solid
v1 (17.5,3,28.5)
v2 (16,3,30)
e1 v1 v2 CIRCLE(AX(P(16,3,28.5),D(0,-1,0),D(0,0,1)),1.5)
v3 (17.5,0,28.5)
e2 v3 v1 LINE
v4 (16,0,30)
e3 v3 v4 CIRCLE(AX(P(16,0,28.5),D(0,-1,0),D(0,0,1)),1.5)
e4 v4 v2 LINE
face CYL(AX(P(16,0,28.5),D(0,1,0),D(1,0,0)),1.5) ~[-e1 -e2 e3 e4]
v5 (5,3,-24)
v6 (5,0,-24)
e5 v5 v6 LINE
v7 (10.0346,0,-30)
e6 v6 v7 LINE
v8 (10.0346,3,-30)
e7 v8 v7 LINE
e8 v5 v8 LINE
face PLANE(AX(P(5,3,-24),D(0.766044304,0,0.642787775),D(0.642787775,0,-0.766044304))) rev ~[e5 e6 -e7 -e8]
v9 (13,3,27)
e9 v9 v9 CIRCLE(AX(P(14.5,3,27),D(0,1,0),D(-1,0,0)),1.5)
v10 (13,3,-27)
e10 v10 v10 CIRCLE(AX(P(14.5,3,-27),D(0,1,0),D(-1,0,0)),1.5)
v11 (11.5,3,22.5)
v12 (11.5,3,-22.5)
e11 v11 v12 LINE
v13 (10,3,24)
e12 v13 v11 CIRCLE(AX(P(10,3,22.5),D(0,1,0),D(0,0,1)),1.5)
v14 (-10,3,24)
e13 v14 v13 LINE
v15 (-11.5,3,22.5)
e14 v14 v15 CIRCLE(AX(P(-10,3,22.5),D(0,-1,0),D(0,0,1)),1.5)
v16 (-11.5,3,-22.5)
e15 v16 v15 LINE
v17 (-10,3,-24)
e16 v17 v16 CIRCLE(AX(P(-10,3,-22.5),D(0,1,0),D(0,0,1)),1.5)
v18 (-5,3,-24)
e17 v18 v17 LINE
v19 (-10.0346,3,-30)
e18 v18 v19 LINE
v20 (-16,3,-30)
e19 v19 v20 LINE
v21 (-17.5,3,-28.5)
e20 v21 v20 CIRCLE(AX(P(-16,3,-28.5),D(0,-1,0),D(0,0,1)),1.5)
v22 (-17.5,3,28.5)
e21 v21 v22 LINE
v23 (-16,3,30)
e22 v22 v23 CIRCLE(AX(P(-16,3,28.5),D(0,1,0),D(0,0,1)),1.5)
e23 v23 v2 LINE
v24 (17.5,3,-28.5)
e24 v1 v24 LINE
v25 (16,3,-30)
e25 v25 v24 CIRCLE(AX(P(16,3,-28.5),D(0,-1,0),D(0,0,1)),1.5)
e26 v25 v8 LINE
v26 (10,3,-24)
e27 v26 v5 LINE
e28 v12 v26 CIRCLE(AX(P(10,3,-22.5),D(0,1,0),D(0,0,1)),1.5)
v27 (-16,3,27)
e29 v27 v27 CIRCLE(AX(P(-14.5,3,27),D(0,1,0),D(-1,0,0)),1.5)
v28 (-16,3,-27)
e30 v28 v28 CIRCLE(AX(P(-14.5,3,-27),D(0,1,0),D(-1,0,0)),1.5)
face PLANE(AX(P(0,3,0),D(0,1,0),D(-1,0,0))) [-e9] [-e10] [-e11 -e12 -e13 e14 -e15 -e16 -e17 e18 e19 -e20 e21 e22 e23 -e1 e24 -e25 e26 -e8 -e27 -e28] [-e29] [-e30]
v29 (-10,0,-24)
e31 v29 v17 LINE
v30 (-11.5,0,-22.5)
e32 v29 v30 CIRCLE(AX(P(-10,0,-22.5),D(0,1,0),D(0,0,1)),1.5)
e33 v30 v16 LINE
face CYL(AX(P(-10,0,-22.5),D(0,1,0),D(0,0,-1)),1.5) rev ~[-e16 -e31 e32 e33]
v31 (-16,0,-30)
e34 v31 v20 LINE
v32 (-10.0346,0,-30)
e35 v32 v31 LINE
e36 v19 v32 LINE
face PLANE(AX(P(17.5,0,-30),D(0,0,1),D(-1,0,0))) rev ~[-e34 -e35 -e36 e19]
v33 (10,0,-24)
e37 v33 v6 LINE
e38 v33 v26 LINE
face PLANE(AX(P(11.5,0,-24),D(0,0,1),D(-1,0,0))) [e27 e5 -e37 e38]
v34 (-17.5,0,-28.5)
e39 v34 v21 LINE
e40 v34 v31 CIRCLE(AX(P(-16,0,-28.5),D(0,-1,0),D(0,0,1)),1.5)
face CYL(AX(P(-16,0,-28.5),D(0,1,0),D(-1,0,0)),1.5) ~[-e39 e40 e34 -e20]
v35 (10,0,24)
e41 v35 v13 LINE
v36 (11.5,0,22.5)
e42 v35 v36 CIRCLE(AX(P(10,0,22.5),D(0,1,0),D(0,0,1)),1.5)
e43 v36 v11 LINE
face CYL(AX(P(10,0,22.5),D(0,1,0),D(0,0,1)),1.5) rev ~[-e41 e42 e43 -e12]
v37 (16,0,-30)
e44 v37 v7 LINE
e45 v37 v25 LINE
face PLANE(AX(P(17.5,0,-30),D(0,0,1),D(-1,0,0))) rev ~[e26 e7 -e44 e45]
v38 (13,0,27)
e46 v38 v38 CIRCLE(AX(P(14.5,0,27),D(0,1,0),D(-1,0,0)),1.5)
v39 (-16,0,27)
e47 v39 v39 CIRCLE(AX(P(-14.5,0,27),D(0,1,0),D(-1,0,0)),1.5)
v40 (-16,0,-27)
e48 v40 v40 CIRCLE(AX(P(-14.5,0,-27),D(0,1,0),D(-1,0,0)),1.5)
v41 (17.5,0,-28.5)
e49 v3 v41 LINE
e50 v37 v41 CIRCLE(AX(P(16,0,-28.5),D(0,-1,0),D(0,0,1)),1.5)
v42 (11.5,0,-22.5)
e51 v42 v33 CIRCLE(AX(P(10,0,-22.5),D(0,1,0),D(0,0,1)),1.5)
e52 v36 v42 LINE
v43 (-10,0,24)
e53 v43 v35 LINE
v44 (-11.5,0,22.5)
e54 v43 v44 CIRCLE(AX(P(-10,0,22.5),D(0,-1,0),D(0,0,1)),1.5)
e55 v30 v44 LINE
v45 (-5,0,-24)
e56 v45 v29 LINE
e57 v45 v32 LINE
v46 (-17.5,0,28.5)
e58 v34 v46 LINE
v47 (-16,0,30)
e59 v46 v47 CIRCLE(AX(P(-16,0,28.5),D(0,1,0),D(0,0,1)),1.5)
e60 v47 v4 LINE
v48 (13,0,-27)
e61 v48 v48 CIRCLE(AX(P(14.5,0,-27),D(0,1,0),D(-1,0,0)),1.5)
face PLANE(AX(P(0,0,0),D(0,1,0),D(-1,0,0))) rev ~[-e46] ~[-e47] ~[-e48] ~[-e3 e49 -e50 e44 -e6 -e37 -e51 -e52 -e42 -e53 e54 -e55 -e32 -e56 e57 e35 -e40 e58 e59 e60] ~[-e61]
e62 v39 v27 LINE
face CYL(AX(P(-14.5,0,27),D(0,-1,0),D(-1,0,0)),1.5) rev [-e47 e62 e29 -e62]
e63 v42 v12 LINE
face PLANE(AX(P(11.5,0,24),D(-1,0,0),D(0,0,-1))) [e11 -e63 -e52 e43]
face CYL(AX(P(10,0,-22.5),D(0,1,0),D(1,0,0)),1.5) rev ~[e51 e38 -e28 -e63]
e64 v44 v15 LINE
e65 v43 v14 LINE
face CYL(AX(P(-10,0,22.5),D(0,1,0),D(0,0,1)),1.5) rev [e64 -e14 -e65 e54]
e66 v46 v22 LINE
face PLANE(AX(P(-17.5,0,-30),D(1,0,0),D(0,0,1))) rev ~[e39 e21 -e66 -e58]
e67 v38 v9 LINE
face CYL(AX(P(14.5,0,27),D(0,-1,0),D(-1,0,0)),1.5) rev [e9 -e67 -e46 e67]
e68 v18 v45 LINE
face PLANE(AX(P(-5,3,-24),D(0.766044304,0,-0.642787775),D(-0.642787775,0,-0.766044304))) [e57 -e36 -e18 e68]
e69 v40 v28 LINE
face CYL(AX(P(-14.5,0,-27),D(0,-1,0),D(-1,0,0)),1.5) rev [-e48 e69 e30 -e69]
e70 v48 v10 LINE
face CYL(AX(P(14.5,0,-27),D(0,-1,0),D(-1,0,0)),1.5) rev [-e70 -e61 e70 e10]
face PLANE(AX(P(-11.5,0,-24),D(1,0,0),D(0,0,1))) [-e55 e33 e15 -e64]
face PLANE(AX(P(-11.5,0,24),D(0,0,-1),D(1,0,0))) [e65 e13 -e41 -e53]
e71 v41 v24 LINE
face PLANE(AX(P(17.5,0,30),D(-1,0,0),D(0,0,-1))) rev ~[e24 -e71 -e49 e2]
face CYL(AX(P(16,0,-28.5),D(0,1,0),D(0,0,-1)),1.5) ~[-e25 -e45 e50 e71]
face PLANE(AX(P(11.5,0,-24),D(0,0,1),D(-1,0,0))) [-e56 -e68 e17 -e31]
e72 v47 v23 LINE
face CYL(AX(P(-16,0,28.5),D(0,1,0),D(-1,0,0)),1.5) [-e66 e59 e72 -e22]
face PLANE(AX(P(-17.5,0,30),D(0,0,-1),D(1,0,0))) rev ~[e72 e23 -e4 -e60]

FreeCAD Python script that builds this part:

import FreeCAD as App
import Part
import Sketcher
Q = App.Units.Quantity


def edges_at(feature, points):
    """Names of the edges that pass closest to the given points."""
    edges = feature.Shape.Edges
    near = lambda p: min(range(len(edges)), key=lambda i: edges[i].distToShape(Part.Vertex(*p))[0])
    return sorted({f"Edge{near(p) + 1}" for p in points})

doc = App.newDocument("Part")
body = doc.addObject("PartDesign::Body", "Body")

sketch1 = doc.addObject("Sketcher::SketchObject", "Sketch")
body.addObject(sketch1)
sketch1.AttachmentSupport = (doc.XZ_Plane, [""])
sketch1.MapMode = "FlatFace"
sketch1.addGeometry(Part.LineSegment(App.Vector(-17.5, -30, 0), App.Vector(-17.5, 30, 0)), False)
sketch1.addGeometry(Part.LineSegment(App.Vector(-17.5, 30, 0), App.Vector(17.5, 30, 0)), False)
sketch1.addGeometry(Part.LineSegment(App.Vector(17.5, 30, 0), App.Vector(17.5, -30, 0)), False)
sketch1.addGeometry(Part.LineSegment(App.Vector(17.5, -30, 0), App.Vector(-17.5, -30, 0)), False)
sketch1.addGeometry(Part.Circle(App.Vector(14.5, -27, 0), App.Vector(0, 0, 1), 1.5), False)
sketch1.addGeometry(Part.Circle(App.Vector(-14.5, -27, 0), App.Vector(0, 0, 1), 1.5), False)
sketch1.addGeometry(Part.Circle(App.Vector(14.5, 27, 0), App.Vector(0, 0, 1), 1.5), False)
sketch1.addGeometry(Part.LineSegment(App.Vector(11.5, 24, 0), App.Vector(-11.5, 24, 0)), False)
sketch1.addGeometry(Part.LineSegment(App.Vector(-11.5, 24, 0), App.Vector(-11.5, -24, 0)), False)
sketch1.addGeometry(Part.LineSegment(App.Vector(-11.5, -24, 0), App.Vector(11.5, -24, 0)), False)
sketch1.addGeometry(Part.LineSegment(App.Vector(11.5, -24, 0), App.Vector(11.5, 24, 0)), False)
sketch1.addGeometry(Part.Circle(App.Vector(-14.5, 27, 0), App.Vector(0, 0, 1), 1.5), False)
sketch1.addConstraint(Sketcher.Constraint("Coincident", 0, 2, 1, 1))
sketch1.addConstraint(Sketcher.Constraint("Coincident", 1, 2, 2, 1))
sketch1.addConstraint(Sketcher.Constraint("Coincident", 2, 2, 3, 1))
sketch1.addConstraint(Sketcher.Constraint("Coincident", 3, 2, 0, 1))
sketch1.addConstraint(Sketcher.Constraint("Coincident", 7, 2, 8, 1))
sketch1.addConstraint(Sketcher.Constraint("Coincident", 8, 2, 9, 1))
sketch1.addConstraint(Sketcher.Constraint("Coincident", 9, 2, 10, 1))
sketch1.addConstraint(Sketcher.Constraint("Coincident", 10, 2, 7, 1))
sketch1.addConstraint(Sketcher.Constraint("Vertical", 0))
sketch1.addConstraint(Sketcher.Constraint("Horizontal", 1))
sketch1.addConstraint(Sketcher.Constraint("Vertical", 2))
sketch1.addConstraint(Sketcher.Constraint("Horizontal", 3))
sketch1.addConstraint(Sketcher.Constraint("Horizontal", 7))
sketch1.addConstraint(Sketcher.Constraint("Vertical", 8))
sketch1.addConstraint(Sketcher.Constraint("Horizontal", 9))
sketch1.addConstraint(Sketcher.Constraint("Vertical", 10))
sketch1.addConstraint(Sketcher.Constraint("Equal", 4, 5))
sketch1.addConstraint(Sketcher.Constraint("Equal", 5, 6))
sketch1.addConstraint(Sketcher.Constraint("Equal", 6, 11))
sketch1.addConstraint(Sketcher.Constraint("Symmetric", 5, 3, 6, 3, -1, 1))
sketch1.addConstraint(Sketcher.Constraint("Symmetric", 4, 3, 11, 3, -1, 1))
sketch1.addConstraint(Sketcher.Constraint("Symmetric", 0, 2, 2, 2, -1, 1))
sketch1.addConstraint(Sketcher.Constraint("Symmetric", 7, 2, 9, 2, -1, 1))
sketch1.addConstraint(Sketcher.Constraint("Symmetric", 4, 3, 5, 3, -2))
sketch1.addConstraint(Sketcher.Constraint("Diameter", 4, Q("3 mm")))
sketch1.addConstraint(Sketcher.Constraint("DistanceX", 7, 2, 7, 1, Q("23 mm")))
sketch1.addConstraint(Sketcher.Constraint("DistanceY", 8, 2, 8, 1, Q("48 mm")))
sketch1.addConstraint(Sketcher.Constraint("DistanceX", 0, 2, 11, 3, Q("3 mm")))
sketch1.addConstraint(Sketcher.Constraint("DistanceY", 11, 3, 0, 2, Q("3 mm")))
sketch1.addConstraint(Sketcher.Constraint("DistanceX", 11, 3, 7, 2, Q("3 mm")))
sketch1.addConstraint(Sketcher.Constraint("DistanceY", 7, 2, 11, 3, Q("3 mm")))
pad1 = doc.addObject("PartDesign::Pad", "Pad")
body.addObject(pad1)
pad1.Profile = sketch1
pad1.Length = 3
pad1.Reversed = True
doc.recompute()

fillet = doc.addObject("PartDesign::Fillet", "Fillet")
body.addObject(fillet)
fillet.Base = (pad1, edges_at(pad1, [
    (17.5, 1.5, -30),
    (17.5, 1.5, 30),
    (-17.5, 1.5, 30),
    (-17.5, 1.5, -30),
    (11.5, 1.5, 24),
    (-11.5, 1.5, 24),
    (-11.5, 1.5, -24),
    (11.5, 1.5, -24),
]))
fillet.Radius = 1.5

sketch2 = doc.addObject("Sketcher::SketchObject", "Sketch001")
body.addObject(sketch2)
sketch2.AttachmentSupport = (doc.XZ_Plane, [""])
sketch2.MapMode = "FlatFace"
sketch2.AttachmentOffset = App.Placement(App.Vector(0, 0, -3), App.Rotation())
sketch2.addGeometry(Part.LineSegment(App.Vector(-10, -30, 0), App.Vector(-5, -24, 0)), False)
sketch2.addGeometry(Part.LineSegment(App.Vector(-5, -24, 0), App.Vector(5, -24, 0)), False)
sketch2.addGeometry(Part.LineSegment(App.Vector(5, -24, 0), App.Vector(10, -30, 0)), False)
sketch2.addGeometry(Part.LineSegment(App.Vector(10, -30, 0), App.Vector(-10, -30, 0)), False)
sketch2.addConstraint(Sketcher.Constraint("Coincident", 0, 2, 1, 1))
sketch2.addConstraint(Sketcher.Constraint("Coincident", 1, 2, 2, 1))
sketch2.addConstraint(Sketcher.Constraint("Coincident", 2, 2, 3, 1))
sketch2.addConstraint(Sketcher.Constraint("Coincident", 3, 2, 0, 1))
sketch2.addConstraint(Sketcher.Constraint("Horizontal", 1))
sketch2.addConstraint(Sketcher.Constraint("Horizontal", 3))
sketch2.addConstraint(Sketcher.Constraint("Equal", 0, 2))
sketch2.addConstraint(Sketcher.Constraint("DistanceX", 0, 2, -1, 1, Q("5 mm")))
sketch2.addConstraint(Sketcher.Constraint("DistanceX", -1, 1, 1, 2, Q("5 mm")))
sketch2.addConstraint(Sketcher.Constraint("Angle", 0, Q("50 deg")))
sketch2.addConstraint(Sketcher.Constraint("DistanceY", 0, 2, -1, 1, Q("24 mm")))
sketch2.addConstraint(Sketcher.Constraint("DistanceY", 2, 2, -1, 1, Q("30 mm")))
pocket1 = doc.addObject("PartDesign::Pocket", "Pocket")
body.addObject(pocket1)
pocket1.Profile = sketch2
pocket1.Length = 10
pocket1.Reversed = True

doc.recompute()
